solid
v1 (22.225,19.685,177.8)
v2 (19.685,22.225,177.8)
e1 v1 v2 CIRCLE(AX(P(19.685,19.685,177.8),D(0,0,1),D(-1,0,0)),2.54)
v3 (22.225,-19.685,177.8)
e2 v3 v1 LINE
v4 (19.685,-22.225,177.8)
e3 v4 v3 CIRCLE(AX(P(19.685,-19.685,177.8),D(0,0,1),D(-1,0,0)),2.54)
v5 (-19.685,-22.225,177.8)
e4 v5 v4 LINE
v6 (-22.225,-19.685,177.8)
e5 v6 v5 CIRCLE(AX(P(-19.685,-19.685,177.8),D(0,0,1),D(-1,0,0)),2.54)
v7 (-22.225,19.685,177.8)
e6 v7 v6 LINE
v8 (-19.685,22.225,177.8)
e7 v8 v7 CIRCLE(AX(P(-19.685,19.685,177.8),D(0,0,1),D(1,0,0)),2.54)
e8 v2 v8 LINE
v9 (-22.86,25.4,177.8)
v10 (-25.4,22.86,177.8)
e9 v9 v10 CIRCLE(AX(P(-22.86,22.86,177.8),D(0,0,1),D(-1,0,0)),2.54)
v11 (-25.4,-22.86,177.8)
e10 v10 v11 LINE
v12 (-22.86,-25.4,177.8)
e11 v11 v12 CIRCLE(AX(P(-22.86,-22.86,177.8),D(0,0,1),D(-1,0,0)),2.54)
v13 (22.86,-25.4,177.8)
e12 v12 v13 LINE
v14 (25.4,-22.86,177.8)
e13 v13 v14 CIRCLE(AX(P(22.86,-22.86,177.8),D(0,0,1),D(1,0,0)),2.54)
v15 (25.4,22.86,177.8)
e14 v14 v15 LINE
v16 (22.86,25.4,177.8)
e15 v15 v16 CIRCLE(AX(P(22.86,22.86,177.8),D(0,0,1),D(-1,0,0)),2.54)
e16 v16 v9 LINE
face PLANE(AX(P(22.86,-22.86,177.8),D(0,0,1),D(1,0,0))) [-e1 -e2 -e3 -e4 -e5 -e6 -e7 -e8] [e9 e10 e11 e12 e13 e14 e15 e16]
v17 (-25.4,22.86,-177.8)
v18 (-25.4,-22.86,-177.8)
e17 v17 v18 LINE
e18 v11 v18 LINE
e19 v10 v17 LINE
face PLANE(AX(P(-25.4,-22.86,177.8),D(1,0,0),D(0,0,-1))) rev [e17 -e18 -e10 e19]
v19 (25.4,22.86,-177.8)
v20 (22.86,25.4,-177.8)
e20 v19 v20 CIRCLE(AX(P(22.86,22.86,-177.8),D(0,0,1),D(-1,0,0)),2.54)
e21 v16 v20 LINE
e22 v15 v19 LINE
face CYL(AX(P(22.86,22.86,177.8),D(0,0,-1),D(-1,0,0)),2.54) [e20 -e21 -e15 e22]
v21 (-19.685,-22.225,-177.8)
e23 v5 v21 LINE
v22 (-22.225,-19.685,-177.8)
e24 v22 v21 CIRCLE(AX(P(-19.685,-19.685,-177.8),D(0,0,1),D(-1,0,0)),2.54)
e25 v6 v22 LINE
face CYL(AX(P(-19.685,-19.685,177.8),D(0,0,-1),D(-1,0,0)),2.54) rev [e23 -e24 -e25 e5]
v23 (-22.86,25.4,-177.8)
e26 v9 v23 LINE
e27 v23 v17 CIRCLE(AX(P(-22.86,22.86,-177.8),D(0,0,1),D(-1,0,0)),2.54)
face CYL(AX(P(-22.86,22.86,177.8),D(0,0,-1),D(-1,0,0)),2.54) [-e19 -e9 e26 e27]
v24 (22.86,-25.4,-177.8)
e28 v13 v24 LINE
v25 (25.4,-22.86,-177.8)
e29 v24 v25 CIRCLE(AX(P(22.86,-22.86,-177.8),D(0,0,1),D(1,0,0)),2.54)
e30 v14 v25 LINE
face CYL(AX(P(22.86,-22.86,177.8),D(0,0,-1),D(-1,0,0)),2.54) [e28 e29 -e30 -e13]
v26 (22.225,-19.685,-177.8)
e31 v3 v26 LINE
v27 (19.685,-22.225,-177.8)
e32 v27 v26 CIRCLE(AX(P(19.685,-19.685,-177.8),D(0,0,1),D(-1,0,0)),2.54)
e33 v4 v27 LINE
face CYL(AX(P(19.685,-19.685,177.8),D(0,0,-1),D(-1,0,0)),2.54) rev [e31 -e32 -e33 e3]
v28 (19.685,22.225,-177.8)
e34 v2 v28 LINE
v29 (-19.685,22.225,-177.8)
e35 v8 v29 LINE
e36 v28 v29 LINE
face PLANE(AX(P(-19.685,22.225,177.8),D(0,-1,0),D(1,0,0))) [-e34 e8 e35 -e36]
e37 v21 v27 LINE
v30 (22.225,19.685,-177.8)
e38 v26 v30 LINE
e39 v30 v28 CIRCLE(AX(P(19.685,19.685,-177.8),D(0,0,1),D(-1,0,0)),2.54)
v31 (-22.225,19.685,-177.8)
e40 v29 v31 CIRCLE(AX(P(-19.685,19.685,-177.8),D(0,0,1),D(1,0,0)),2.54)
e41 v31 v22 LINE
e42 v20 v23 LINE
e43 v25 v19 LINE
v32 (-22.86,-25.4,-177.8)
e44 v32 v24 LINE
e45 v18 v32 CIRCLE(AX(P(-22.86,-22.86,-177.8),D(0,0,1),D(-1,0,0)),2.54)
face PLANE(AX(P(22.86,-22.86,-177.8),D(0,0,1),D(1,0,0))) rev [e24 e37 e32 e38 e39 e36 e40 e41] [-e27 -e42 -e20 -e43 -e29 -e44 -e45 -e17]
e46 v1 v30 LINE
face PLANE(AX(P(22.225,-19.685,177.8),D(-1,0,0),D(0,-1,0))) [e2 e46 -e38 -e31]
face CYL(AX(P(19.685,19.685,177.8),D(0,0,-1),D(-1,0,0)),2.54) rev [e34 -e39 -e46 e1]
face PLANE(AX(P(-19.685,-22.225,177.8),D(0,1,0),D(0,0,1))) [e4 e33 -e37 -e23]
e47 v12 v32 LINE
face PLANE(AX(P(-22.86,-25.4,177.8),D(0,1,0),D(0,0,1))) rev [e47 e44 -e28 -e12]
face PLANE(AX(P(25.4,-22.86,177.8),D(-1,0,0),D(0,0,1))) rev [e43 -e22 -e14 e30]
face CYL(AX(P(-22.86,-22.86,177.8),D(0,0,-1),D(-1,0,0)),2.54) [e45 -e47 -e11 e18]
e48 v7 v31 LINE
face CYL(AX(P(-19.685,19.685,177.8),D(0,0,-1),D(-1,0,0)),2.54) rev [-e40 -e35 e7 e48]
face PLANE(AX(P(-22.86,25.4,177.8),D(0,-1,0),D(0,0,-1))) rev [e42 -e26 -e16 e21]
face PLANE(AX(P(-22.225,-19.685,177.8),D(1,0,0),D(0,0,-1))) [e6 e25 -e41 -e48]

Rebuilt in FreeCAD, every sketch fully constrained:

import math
import FreeCAD as App
import Part
import Sketcher
Q = App.Units.Quantity

doc = App.newDocument("Part")
params = doc.addObject("Spreadsheet::Sheet", "Params")
for row, (alias, value) in enumerate([
    ("sketch1_radius", "0.1 in"),
    ("sketch1_width", "1.8 in"),
    ("sketch1_width2", "1.55 in"),
    ("pad1_length", "14 in"),
], start=1):
    params.set(f"A{row}", alias)
    params.set(f"B{row}", "=" + value)
    params.setAlias(f"B{row}", alias)

body = doc.addObject("PartDesign::Body", "Body")

# Sketch on XY plane
sketch1 = doc.addObject("Sketcher::SketchObject", "Sketch")
body.addObject(sketch1)
sketch1.AttachmentSupport = (doc.XY_Plane, [""])
sketch1.MapMode = "FlatFace"
sketch1.addGeometry([
    Part.LineSegment(App.Vector(-22.86, -25.4, 0), App.Vector(22.86, -25.4, 0)),  # 0
    Part.ArcOfCircle(Part.Circle(App.Vector(22.86, -22.86, 0), App.Vector(0, 0, 1), 2.54), math.radians(-90), math.radians(0)),  # 1
    Part.LineSegment(App.Vector(25.4, -22.86, 0), App.Vector(25.4, 22.86, 0)),  # 2
    Part.ArcOfCircle(Part.Circle(App.Vector(22.86, 22.86, 0), App.Vector(0, 0, 1), 2.54), math.radians(0), math.radians(90)),  # 3
    Part.LineSegment(App.Vector(22.86, 25.4, 0), App.Vector(-22.86, 25.4, 0)),  # 4
    Part.ArcOfCircle(Part.Circle(App.Vector(-22.86, 22.86, 0), App.Vector(0, 0, 1), 2.54), math.radians(90), math.radians(180)),  # 5
    Part.LineSegment(App.Vector(-25.4, 22.86, 0), App.Vector(-25.4, -22.86, 0)),  # 6
    Part.ArcOfCircle(Part.Circle(App.Vector(-22.86, -22.86, 0), App.Vector(0, 0, 1), 2.54), math.radians(-180), math.radians(-90)),  # 7
    Part.ArcOfCircle(Part.Circle(App.Vector(-19.685, 19.685, 0), App.Vector(0, 0, 1), 2.54), math.radians(90), math.radians(180)),  # 8
    Part.LineSegment(App.Vector(-19.685, 22.225, 0), App.Vector(19.685, 22.225, 0)),  # 9
    Part.ArcOfCircle(Part.Circle(App.Vector(19.685, 19.685, 0), App.Vector(0, 0, 1), 2.54), math.radians(0), math.radians(90)),  # 10
    Part.LineSegment(App.Vector(22.225, 19.685, 0), App.Vector(22.225, -19.685, 0)),  # 11
    Part.ArcOfCircle(Part.Circle(App.Vector(19.685, -19.685, 0), App.Vector(0, 0, 1), 2.54), math.radians(-90), math.radians(0)),  # 12
    Part.LineSegment(App.Vector(19.685, -22.225, 0), App.Vector(-19.685, -22.225, 0)),  # 13
    Part.ArcOfCircle(Part.Circle(App.Vector(-19.685, -19.685, 0), App.Vector(0, 0, 1), 2.54), math.radians(-180), math.radians(-90)),  # 14
    Part.LineSegment(App.Vector(-22.225, -19.685, 0), App.Vector(-22.225, 19.685, 0)),  # 15
], False)
sketch1.addConstraint([
    Sketcher.Constraint("Tangent", 0, 2, 1, 1),
    Sketcher.Constraint("Tangent", 1, 2, 2, 1),
    Sketcher.Constraint("Tangent", 2, 2, 3, 1),
    Sketcher.Constraint("Tangent", 3, 2, 4, 1),
    Sketcher.Constraint("Tangent", 4, 2, 5, 1),
    Sketcher.Constraint("Tangent", 5, 2, 6, 1),
    Sketcher.Constraint("Tangent", 6, 2, 7, 1),
    Sketcher.Constraint("Tangent", 7, 2, 0, 1),
    Sketcher.Constraint("Tangent", 8, 1, 9, 1),
    Sketcher.Constraint("Tangent", 9, 2, 10, 2),
    Sketcher.Constraint("Tangent", 10, 1, 11, 1),
    Sketcher.Constraint("Tangent", 11, 2, 12, 2),
    Sketcher.Constraint("Tangent", 12, 1, 13, 1),
    Sketcher.Constraint("Tangent", 13, 2, 14, 2),
    Sketcher.Constraint("Tangent", 14, 1, 15, 1),
    Sketcher.Constraint("Tangent", 15, 2, 8, 2),
    Sketcher.Constraint("Horizontal", 0),
    Sketcher.Constraint("Vertical", 2),
    Sketcher.Constraint("Horizontal", 4),
    Sketcher.Constraint("Vertical", 6),
    Sketcher.Constraint("Horizontal", 9),
    Sketcher.Constraint("Vertical", 11),
    Sketcher.Constraint("Horizontal", 13),
    Sketcher.Constraint("Vertical", 15),
    Sketcher.Constraint("Equal", 1, 3),
    Sketcher.Constraint("Equal", 3, 5),
    Sketcher.Constraint("Equal", 5, 7),
    Sketcher.Constraint("Equal", 7, 8),
    Sketcher.Constraint("Equal", 8, 10),
    Sketcher.Constraint("Equal", 10, 12),
    Sketcher.Constraint("Equal", 12, 14),
    Sketcher.Constraint("Symmetric", 1, 3, 5, 3, -1, 1),
    Sketcher.Constraint("Symmetric", 8, 3, 12, 3, -1, 1),
    Sketcher.Constraint("Equal", 4, 2),
    Sketcher.Constraint("Equal", 13, 11),
    Sketcher.Constraint("Radius", 1, Q("0.1 in")),
    Sketcher.Constraint("DistanceX", 0, 1, 0, 2, Q("1.8 in")),
    Sketcher.Constraint("DistanceX", 9, 1, 9, 2, Q("1.55 in")),
])
sketch1.setExpression("Constraints[35]", "Params.sketch1_radius")
sketch1.setExpression("Constraints[36]", "Params.sketch1_width")
sketch1.setExpression("Constraints[37]", "Params.sketch1_width2")
pad1 = doc.addObject("PartDesign::Pad", "Pad")
body.addObject(pad1)
pad1.Profile = sketch1
pad1.setExpression("Length", "Params.pad1_length")
pad1.Midplane = True

doc.recompute()
